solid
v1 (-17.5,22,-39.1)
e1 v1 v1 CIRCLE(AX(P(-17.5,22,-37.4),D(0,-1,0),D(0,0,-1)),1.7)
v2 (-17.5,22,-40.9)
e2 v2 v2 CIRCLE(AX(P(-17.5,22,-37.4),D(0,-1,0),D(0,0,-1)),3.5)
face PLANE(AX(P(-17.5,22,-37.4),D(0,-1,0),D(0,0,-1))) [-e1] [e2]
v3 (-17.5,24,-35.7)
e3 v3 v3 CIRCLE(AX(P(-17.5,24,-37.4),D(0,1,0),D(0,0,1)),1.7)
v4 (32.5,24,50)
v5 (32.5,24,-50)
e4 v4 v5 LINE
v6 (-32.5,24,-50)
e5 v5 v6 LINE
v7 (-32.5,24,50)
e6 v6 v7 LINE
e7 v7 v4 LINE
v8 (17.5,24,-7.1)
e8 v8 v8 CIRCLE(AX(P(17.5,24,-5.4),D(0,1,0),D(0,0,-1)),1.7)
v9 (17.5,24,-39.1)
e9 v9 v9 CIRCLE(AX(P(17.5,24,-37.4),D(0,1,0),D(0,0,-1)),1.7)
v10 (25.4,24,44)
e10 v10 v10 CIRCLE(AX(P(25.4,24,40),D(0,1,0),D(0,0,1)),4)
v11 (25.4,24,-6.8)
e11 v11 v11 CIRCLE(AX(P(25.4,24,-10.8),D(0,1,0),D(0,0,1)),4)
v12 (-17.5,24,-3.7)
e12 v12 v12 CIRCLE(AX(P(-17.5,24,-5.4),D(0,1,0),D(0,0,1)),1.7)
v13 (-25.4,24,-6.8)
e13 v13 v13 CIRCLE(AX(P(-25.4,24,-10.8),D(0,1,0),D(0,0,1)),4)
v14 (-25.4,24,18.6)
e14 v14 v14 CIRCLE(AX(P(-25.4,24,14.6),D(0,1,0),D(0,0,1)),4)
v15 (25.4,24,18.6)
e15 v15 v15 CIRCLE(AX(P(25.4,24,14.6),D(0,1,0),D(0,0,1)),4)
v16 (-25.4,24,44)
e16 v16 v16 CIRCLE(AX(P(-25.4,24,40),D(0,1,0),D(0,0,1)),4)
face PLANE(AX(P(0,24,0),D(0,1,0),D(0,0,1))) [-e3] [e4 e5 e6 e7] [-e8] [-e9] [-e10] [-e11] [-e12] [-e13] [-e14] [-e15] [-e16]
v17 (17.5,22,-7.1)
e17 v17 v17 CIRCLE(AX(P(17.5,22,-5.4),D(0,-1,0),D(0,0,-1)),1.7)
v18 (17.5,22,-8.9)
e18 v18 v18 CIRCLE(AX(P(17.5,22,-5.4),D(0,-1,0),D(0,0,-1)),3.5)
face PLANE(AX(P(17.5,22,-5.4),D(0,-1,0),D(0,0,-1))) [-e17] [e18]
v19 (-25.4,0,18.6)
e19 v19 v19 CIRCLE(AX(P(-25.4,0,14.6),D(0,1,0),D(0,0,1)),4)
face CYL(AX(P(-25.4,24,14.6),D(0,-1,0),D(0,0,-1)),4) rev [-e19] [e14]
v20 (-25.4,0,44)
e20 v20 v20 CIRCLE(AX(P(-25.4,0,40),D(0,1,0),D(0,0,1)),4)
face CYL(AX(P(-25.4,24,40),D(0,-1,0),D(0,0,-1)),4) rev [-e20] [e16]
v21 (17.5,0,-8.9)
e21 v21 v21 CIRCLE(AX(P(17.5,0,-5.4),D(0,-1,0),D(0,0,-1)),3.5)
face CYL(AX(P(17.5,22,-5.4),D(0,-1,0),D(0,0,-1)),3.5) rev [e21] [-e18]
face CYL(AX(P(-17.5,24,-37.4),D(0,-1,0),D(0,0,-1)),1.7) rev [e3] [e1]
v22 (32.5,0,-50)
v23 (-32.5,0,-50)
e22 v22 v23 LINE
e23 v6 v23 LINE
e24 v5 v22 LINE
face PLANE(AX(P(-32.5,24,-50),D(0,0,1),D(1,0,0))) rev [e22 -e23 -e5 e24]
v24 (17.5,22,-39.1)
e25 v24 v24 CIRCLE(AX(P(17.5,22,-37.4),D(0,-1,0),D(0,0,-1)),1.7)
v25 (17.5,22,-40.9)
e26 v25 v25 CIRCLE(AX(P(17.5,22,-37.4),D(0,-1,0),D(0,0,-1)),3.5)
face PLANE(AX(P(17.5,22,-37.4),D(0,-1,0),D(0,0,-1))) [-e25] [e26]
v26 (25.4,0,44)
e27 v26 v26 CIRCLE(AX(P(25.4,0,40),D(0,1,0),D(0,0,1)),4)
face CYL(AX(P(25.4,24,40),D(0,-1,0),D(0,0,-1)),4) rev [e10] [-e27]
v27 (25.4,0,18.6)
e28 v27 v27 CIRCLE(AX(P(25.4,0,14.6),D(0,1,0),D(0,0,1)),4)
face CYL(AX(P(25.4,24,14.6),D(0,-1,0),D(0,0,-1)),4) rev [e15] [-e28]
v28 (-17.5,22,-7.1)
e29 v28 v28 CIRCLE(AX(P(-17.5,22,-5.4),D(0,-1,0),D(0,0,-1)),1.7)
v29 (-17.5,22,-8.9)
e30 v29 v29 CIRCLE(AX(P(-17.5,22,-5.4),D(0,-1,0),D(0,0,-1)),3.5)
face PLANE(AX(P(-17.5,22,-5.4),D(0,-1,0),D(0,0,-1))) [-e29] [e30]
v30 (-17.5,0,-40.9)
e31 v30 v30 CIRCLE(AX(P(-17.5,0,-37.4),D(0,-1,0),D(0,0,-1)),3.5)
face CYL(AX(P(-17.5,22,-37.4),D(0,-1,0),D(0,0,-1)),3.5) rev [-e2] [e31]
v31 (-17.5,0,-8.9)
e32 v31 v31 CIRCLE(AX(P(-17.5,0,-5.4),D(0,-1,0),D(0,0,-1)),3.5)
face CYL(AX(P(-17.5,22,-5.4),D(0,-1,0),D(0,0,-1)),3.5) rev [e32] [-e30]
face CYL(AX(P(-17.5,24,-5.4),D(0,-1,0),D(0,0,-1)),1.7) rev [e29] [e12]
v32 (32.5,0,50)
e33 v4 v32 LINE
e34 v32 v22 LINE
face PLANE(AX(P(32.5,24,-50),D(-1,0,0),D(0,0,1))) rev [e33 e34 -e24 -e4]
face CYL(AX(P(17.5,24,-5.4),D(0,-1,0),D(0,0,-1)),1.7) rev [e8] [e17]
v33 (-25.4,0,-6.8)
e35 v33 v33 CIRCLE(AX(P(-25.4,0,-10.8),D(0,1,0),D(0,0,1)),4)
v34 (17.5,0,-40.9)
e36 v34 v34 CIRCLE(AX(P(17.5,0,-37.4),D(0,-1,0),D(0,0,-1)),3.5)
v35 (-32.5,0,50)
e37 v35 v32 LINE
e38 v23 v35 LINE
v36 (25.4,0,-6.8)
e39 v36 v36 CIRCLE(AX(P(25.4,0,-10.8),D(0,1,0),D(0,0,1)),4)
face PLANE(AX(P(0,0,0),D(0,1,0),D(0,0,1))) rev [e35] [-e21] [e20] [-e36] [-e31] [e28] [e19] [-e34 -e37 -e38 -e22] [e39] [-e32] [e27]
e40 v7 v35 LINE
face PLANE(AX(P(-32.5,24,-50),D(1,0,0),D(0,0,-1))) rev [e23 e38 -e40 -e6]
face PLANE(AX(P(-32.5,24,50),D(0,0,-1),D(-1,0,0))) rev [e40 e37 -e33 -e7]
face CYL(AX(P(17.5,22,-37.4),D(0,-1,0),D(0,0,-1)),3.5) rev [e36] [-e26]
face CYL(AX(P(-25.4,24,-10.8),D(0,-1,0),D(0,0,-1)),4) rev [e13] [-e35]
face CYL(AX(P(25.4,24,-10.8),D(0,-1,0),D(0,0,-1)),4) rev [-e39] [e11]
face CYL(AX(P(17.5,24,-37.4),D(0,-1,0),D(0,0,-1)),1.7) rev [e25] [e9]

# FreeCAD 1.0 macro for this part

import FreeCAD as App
import Part
import Sketcher


def add_polygon(sketch, points):
    """Adds a closed chain of lines whose ends are joined by coincident constraints."""
    first, n = sketch.GeometryCount, len(points)
    for a, b in zip(points, points[1:] + points[:1]):
        sketch.addGeometry(Part.LineSegment(App.Vector(*a, 0), App.Vector(*b, 0)), False)
    for i in range(n):
        sketch.addConstraint(Sketcher.Constraint("Coincident", first + i, 2, first + (i + 1) % n, 1))

doc = App.newDocument("Part")
body = doc.addObject("PartDesign::Body", "Body")

# Sketch on XZ plane
sketch1 = body.newObject("Sketcher::SketchObject", "Sketch")
sketch1.AttachmentSupport = (doc.getObject("XZ_Plane"), [""])
sketch1.MapMode = "FlatFace"
add_polygon(sketch1, [(-32.5, -50), (-32.5, 50), (32.5, 50), (32.5, -50)])  # lines 0-3
sketch1.addGeometry(Part.Circle(App.Vector(-25.4, 40, 0), App.Vector(0, 0, 1), 4), False)  # 4
sketch1.addGeometry(Part.Circle(App.Vector(-25.4, 14.6, 0), App.Vector(0, 0, 1), 4), False)  # 5
sketch1.addGeometry(Part.Circle(App.Vector(25.4, 40, 0), App.Vector(0, 0, 1), 4), False)  # 6
sketch1.addGeometry(Part.Circle(App.Vector(25.4, 14.6, 0), App.Vector(0, 0, 1), 4), False)  # 7
sketch1.addGeometry(Part.Circle(App.Vector(-17.5, -5.4, 0), App.Vector(0, 0, 1), 1.7), False)  # 8
sketch1.addGeometry(Part.Circle(App.Vector(-25.4, -10.8, 0), App.Vector(0, 0, 1), 4), False)  # 9
sketch1.addGeometry(Part.Circle(App.Vector(-17.5, -37.4, 0), App.Vector(0, 0, 1), 1.7), False)  # 10
sketch1.addGeometry(Part.Circle(App.Vector(17.5, -5.4, 0), App.Vector(0, 0, 1), 1.7), False)  # 11
sketch1.addGeometry(Part.Circle(App.Vector(25.4, -10.8, 0), App.Vector(0, 0, 1), 4), False)  # 12
sketch1.addGeometry(Part.Circle(App.Vector(17.5, -37.4, 0), App.Vector(0, 0, 1), 1.7), False)  # 13
sketch1.addConstraint([
    Sketcher.Constraint("Vertical", 0),
    Sketcher.Constraint("Horizontal", 1),
    Sketcher.Constraint("Vertical", 2),
    Sketcher.Constraint("Horizontal", 3),
    Sketcher.Constraint("Equal", 4, 5),
    Sketcher.Constraint("Equal", 5, 6),
    Sketcher.Constraint("Equal", 6, 7),
    Sketcher.Constraint("Equal", 7, 9),
    Sketcher.Constraint("Equal", 8, 10),
    Sketcher.Constraint("Equal", 10, 11),
    Sketcher.Constraint("Equal", 9, 12),
    Sketcher.Constraint("Equal", 11, 13),
    Sketcher.Constraint("Symmetric", 0, 2, 2, 2, -1, 1),
    Sketcher.Constraint("Symmetric", 4, 3, 6, 3, -2),
    Sketcher.Constraint("Symmetric", 5, 3, 7, 3, -2),
    Sketcher.Constraint("Symmetric", 8, 3, 11, 3, -2),
    Sketcher.Constraint("Symmetric", 9, 3, 12, 3, -2),
    Sketcher.Constraint("Symmetric", 10, 3, 13, 3, -2),
    Sketcher.Constraint("Vertical", 4, 3, 5, 3),
    Sketcher.Constraint("Vertical", 5, 3, 9, 3),
    Sketcher.Constraint("Vertical", 8, 3, 10, 3),
    Sketcher.Constraint("Diameter", 4, 8.0),
    Sketcher.Constraint("Diameter", 8, 3.4),
    Sketcher.Constraint("DistanceX", 1, 1, 1, 2, 65.0),
    Sketcher.Constraint("DistanceY", 0, 1, 0, 2, 100.0),
    Sketcher.Constraint("DistanceY", -1, 1, 4, 3, 40.0),
    Sketcher.Constraint("DistanceY", 8, 3, 5, 3, 20.0),
    Sketcher.Constraint("DistanceY", 10, 3, 8, 3, 32.0),
    Sketcher.Constraint("DistanceX", 8, 3, 11, 3, 35.0),
    Sketcher.Constraint("DistanceX", 4, 3, -1, 1, 25.4),
    Sketcher.Constraint("DistanceY", -1, 1, 5, 3, 14.6),
    Sketcher.Constraint("DistanceY", 9, 3, -1, 1, 10.8),
])
pad1 = body.newObject("PartDesign::Pad", "Pad")
pad1.Profile = sketch1
pad1.Length = 24
pad1.Reversed = True

# Sketch on XZ plane
sketch2 = body.newObject("Sketcher::SketchObject", "Sketch001")
sketch2.AttachmentSupport = (doc.getObject("XZ_Plane"), [""])
sketch2.MapMode = "FlatFace"
sketch2.addGeometry([
    Part.Circle(App.Vector(-17.5, -5.4, 0), App.Vector(0, 0, 1), 3.5),
    Part.Circle(App.Vector(17.5, -5.4, 0), App.Vector(0, 0, 1), 3.5),
    Part.Circle(App.Vector(-17.5, -37.4, 0), App.Vector(0, 0, 1), 3.5),
    Part.Circle(App.Vector(17.5, -37.4, 0), App.Vector(0, 0, 1), 3.5),
], False)
sketch2.addConstraint([
    Sketcher.Constraint("Equal", 0, 1),
    Sketcher.Constraint("Equal", 1, 2),
    Sketcher.Constraint("Equal", 2, 3),
    Sketcher.Constraint("Symmetric", 0, 3, 1, 3, -2),
    Sketcher.Constraint("Symmetric", 2, 3, 3, 3, -2),
    Sketcher.Constraint("Vertical", 0, 3, 2, 3),
    Sketcher.Constraint("Diameter", 0, 7.0),
    Sketcher.Constraint("DistanceX", 0, 3, 1, 3, 35.0),
    Sketcher.Constraint("DistanceY", 2, 3, 0, 3, 32.0),
    Sketcher.Constraint("DistanceY", 0, 3, -1, 1, 5.4),
])
pocket1 = body.newObject("PartDesign::Pocket", "Pocket")
pocket1.Profile = sketch2
pocket1.Length = 22

doc.recompute()
